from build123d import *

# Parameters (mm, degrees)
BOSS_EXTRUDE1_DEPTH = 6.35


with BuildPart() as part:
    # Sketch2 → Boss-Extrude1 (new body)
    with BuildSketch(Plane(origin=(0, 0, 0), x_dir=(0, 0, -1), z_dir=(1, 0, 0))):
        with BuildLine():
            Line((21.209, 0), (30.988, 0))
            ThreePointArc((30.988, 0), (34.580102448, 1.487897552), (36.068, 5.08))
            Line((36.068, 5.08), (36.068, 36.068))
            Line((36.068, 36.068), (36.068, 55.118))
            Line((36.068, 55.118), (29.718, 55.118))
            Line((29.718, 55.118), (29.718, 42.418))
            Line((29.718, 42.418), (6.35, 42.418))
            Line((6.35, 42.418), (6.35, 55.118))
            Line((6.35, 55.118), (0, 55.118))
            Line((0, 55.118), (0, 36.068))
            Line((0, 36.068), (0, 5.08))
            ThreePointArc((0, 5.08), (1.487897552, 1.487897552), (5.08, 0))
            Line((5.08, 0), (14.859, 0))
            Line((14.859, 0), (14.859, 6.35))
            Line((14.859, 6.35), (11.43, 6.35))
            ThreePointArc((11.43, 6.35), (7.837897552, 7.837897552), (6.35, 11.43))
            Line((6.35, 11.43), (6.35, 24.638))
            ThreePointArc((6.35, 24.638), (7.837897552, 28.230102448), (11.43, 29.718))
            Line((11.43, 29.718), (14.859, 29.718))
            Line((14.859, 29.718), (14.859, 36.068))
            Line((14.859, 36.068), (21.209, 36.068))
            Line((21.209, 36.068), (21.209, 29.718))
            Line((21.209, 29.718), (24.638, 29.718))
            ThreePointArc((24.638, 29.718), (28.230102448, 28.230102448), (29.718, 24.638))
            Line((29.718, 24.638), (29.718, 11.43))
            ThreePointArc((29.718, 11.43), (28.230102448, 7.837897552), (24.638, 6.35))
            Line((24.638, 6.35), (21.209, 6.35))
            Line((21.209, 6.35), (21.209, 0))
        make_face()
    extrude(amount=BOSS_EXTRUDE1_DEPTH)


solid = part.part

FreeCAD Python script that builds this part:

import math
import FreeCAD as App
import Part
import Sketcher

V = App.Vector
Q = App.Units.Quantity

doc = App.newDocument("Part")
body = doc.addObject("PartDesign::Body", "Body")

# Sketch on YZ plane
sketch1 = doc.addObject("Sketcher::SketchObject", "Sketch")
body.addObject(sketch1)
sketch1.AttachmentSupport = (doc.YZ_Plane, [""])
sketch1.MapMode = "FlatFace"
sketch1.addGeometry([
    Part.LineSegment(V(0, -21.2, 0), V(0, -31, 0)),  # 0
    Part.ArcOfCircle(Part.Circle(V(5.1, -31, 0), V(0, 0, 1), 5.1), math.radians(-180), math.radians(-90)),  # 1
    Part.LineSegment(V(5.1, -36.1, 0), V(55.1, -36.1, 0)),  # 2
    Part.LineSegment(V(55.1, -36.1, 0), V(55.1, -29.7, 0)),  # 3
    Part.LineSegment(V(55.1, -29.7, 0), V(42.4, -29.7, 0)),  # 4
    Part.LineSegment(V(42.4, -29.7, 0), V(42.4, -6.3, 0)),  # 5
    Part.LineSegment(V(42.4, -6.3, 0), V(55.1, -6.3, 0)),  # 6
    Part.LineSegment(V(55.1, -6.3, 0), V(55.1, 0, 0)),  # 7
    Part.LineSegment(V(55.1, 0, 0), V(5.1, 0, 0)),  # 8
    Part.ArcOfCircle(Part.Circle(V(5.1, -5.1, 0), V(0, 0, 1), 5.1), math.radians(90), math.radians(180)),  # 9
    Part.LineSegment(V(0, -5.1, 0), V(0, -14.9, 0)),  # 10
    Part.LineSegment(V(0, -14.9, 0), V(6.3, -14.9, 0)),  # 11
    Part.LineSegment(V(6.3, -14.9, 0), V(6.3, -11.4, 0)),  # 12
    Part.ArcOfCircle(Part.Circle(V(11.4, -11.4, 0), V(0, 0, 1), 5.1), math.radians(90), math.radians(180)),  # 13
    Part.LineSegment(V(11.4, -6.3, 0), V(24.6, -6.3, 0)),  # 14
    Part.ArcOfCircle(Part.Circle(V(24.6, -11.4, 0), V(0, 0, 1), 5.1), math.radians(0), math.radians(90)),  # 15
    Part.LineSegment(V(29.7, -11.4, 0), V(29.7, -14.9, 0)),  # 16
    Part.LineSegment(V(29.7, -14.9, 0), V(36.1, -14.9, 0)),  # 17
    Part.LineSegment(V(36.1, -14.9, 0), V(36.1, -21.2, 0)),  # 18
    Part.LineSegment(V(36.1, -21.2, 0), V(29.7, -21.2, 0)),  # 19
    Part.LineSegment(V(29.7, -21.2, 0), V(29.7, -24.6, 0)),  # 20
    Part.ArcOfCircle(Part.Circle(V(24.6, -24.6, 0), V(0, 0, 1), 5.1), math.radians(-90), math.radians(0)),  # 21
    Part.LineSegment(V(24.6, -29.7, 0), V(11.4, -29.7, 0)),  # 22
    Part.ArcOfCircle(Part.Circle(V(11.4, -24.6, 0), V(0, 0, 1), 5.1), math.radians(-180), math.radians(-90)),  # 23
    Part.LineSegment(V(6.3, -24.6, 0), V(6.3, -21.2, 0)),  # 24
    Part.LineSegment(V(6.3, -21.2, 0), V(0, -21.2, 0)),  # 25
], False)
sketch1.addConstraint([
    Sketcher.Constraint("Tangent", 0, 2, 1, 1),
    Sketcher.Constraint("Tangent", 1, 2, 2, 1),
    Sketcher.Constraint("Coincident", 2, 2, 3, 1),
    Sketcher.Constraint("Coincident", 3, 2, 4, 1),
    Sketcher.Constraint("Coincident", 4, 2, 5, 1),
    Sketcher.Constraint("Coincident", 5, 2, 6, 1),
    Sketcher.Constraint("Coincident", 6, 2, 7, 1),
    Sketcher.Constraint("Coincident", 7, 2, 8, 1),
    Sketcher.Constraint("Tangent", 8, 2, 9, 1),
    Sketcher.Constraint("Tangent", 9, 2, 10, 1),
    Sketcher.Constraint("Coincident", 10, 2, 11, 1),
    Sketcher.Constraint("Coincident", 11, 2, 12, 1),
    Sketcher.Constraint("Tangent", 12, 2, 13, 2),
    Sketcher.Constraint("Tangent", 13, 1, 14, 1),
    Sketcher.Constraint("Tangent", 14, 2, 15, 2),
    Sketcher.Constraint("Tangent", 15, 1, 16, 1),
    Sketcher.Constraint("Coincident", 16, 2, 17, 1),
    Sketcher.Constraint("Coincident", 17, 2, 18, 1),
    Sketcher.Constraint("Coincident", 18, 2, 19, 1),
    Sketcher.Constraint("Coincident", 19, 2, 20, 1),
    Sketcher.Constraint("Tangent", 20, 2, 21, 2),
    Sketcher.Constraint("Tangent", 21, 1, 22, 1),
    Sketcher.Constraint("Tangent", 22, 2, 23, 2),
    Sketcher.Constraint("Tangent", 23, 1, 24, 1),
    Sketcher.Constraint("Coincident", 24, 2, 25, 1),
    Sketcher.Constraint("Coincident", 25, 2, 0, 1),
    Sketcher.Constraint("Vertical", 0),
    Sketcher.Constraint("Horizontal", 2),
    Sketcher.Constraint("Vertical", 3),
    Sketcher.Constraint("Horizontal", 4),
    Sketcher.Constraint("Vertical", 5),
    Sketcher.Constraint("Horizontal", 6),
    Sketcher.Constraint("Vertical", 7),
    Sketcher.Constraint("Horizontal", 8),
    Sketcher.Constraint("Vertical", 10),
    Sketcher.Constraint("Horizontal", 11),
    Sketcher.Constraint("Vertical", 12),
    Sketcher.Constraint("Horizontal", 14),
    Sketcher.Constraint("Vertical", 16),
    Sketcher.Constraint("Horizontal", 17),
    Sketcher.Constraint("Vertical", 18),
    Sketcher.Constraint("Horizontal", 19),
    Sketcher.Constraint("Vertical", 20),
    Sketcher.Constraint("Horizontal", 22),
    Sketcher.Constraint("Vertical", 24),
    Sketcher.Constraint("Horizontal", 25),
    Sketcher.Constraint("Equal", 1, 9),
    Sketcher.Constraint("Equal", 9, 13),
    Sketcher.Constraint("Equal", 13, 15),
    Sketcher.Constraint("Equal", 15, 21),
    Sketcher.Constraint("Equal", 21, 23),
    Sketcher.Constraint("PointOnObject", 0, 2, -2),
    Sketcher.Constraint("PointOnObject", 7, 2, -1),
    Sketcher.Constraint("PointOnObject", 9, 2, -2),
    Sketcher.Constraint("Horizontal", 6, 2, 13, 1),
    Sketcher.Constraint("Horizontal", 11, 2, 16, 2),
    Sketcher.Constraint("Horizontal", 4, 2, 21, 1),
    Sketcher.Constraint("Horizontal", 19, 2, 24, 2),
    Sketcher.Constraint("Vertical", 15, 3, 21, 3),
    Sketcher.Constraint("Vertical", 13, 3, 23, 3),
    Sketcher.Constraint("Vertical", 3, 2, 6, 2),
    Sketcher.Constraint("Equal", 11, 17),
    Sketcher.Constraint("Equal", 25, 3),
    Sketcher.Constraint("Equal", 3, 7),
    Sketcher.Constraint("Equal", 0, 10),
    Sketcher.Constraint("Equal", 7, 18),
    Sketcher.Constraint("Radius", 1, Q("0.2 in")),
    Sketcher.Constraint("DistanceX", 4, 2, 4, 1, Q("0.5 in")),
    Sketcher.Constraint("DistanceX", 2, 1, 2, 2, Q("1.97 in")),
    Sketcher.Constraint("DistanceX", 11, 1, 11, 2, Q("0.25 in")),
    Sketcher.Constraint("DistanceX", 14, 1, 14, 2, Q("0.52 in")),
    Sketcher.Constraint("DistanceY", 5, 1, 5, 2, Q("0.92 in")),
])
pad1 = doc.addObject("PartDesign::Pad", "Pad")
body.addObject(pad1)
pad1.Profile = sketch1
pad1.Length = Q("0.25 in")

doc.recompute()
